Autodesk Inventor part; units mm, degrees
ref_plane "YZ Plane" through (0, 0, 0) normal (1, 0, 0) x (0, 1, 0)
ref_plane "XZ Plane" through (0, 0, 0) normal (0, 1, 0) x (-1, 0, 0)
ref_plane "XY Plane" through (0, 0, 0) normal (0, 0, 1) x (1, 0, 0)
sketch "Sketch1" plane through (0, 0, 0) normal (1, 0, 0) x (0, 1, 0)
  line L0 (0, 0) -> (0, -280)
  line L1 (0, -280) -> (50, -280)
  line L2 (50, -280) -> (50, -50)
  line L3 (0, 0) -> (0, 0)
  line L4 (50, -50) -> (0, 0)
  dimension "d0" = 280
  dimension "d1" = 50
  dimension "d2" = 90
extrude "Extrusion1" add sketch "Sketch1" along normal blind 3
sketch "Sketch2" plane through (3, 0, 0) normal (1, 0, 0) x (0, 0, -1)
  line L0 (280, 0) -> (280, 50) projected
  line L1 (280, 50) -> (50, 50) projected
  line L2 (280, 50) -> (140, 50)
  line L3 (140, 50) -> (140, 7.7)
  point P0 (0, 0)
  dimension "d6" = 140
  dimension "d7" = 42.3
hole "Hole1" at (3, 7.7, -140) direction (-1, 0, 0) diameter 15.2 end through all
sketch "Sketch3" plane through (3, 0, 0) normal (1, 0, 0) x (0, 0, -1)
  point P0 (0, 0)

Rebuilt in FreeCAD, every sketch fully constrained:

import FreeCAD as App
import Part
import Sketcher

V = App.Vector


def add_polygon(sketch, points):
    """Adds a closed chain of lines whose ends are joined by coincident constraints."""
    first, n = sketch.GeometryCount, len(points)
    for a, b in zip(points, points[1:] + points[:1]):
        sketch.addGeometry(Part.LineSegment(App.Vector(*a, 0), App.Vector(*b, 0)), False)
    for i in range(n):
        sketch.addConstraint(Sketcher.Constraint("Coincident", first + i, 2, first + (i + 1) % n, 1))

doc = App.newDocument("Part")
body = doc.addObject("PartDesign::Body", "Body")

sketch1 = doc.addObject("Sketcher::SketchObject", "Sketch")
body.addObject(sketch1)
sketch1.AttachmentSupport = (doc.YZ_Plane, [""])
sketch1.MapMode = "FlatFace"
add_polygon(sketch1, [(50, -50), (0, 0), (0, -280), (50, -280)])
sketch1.addConstraint(Sketcher.Constraint("Vertical", 1))
sketch1.addConstraint(Sketcher.Constraint("Horizontal", 2))
sketch1.addConstraint(Sketcher.Constraint("Vertical", 3))
sketch1.addConstraint(Sketcher.Constraint("Coincident", 0, 2, -1, 1))
sketch1.addConstraint(Sketcher.Constraint("DistanceX", 2, 1, 2, 2, 50.0))
sketch1.addConstraint(Sketcher.Constraint("DistanceY", 1, 2, 1, 1, 280.0))
sketch1.addConstraint(Sketcher.Constraint("DistanceY", 3, 2, -1, 1, 50.0))
pad1 = doc.addObject("PartDesign::Pad", "Pad")
body.addObject(pad1)
pad1.Profile = sketch1
pad1.Length = 3

sketch2 = doc.addObject("Sketcher::SketchObject", "Sketch001")
body.addObject(sketch2)
sketch2.AttachmentSupport = (doc.YZ_Plane, [""])
sketch2.MapMode = "FlatFace"
sketch2.AttachmentOffset = App.Placement(V(0, 0, 3), App.Rotation())
sketch2.addGeometry(Part.Circle(V(8, -140, 0), V(0, 0, 1), 8), False)
sketch2.addConstraint(Sketcher.Constraint("Diameter", 0, 15.2))
sketch2.addConstraint(Sketcher.Constraint("DistanceY", 0, 3, -1, 1, 140.0))
sketch2.addConstraint(Sketcher.Constraint("DistanceX", -1, 1, 0, 3, 7.7))
doc.recompute()
hole = doc.addObject("PartDesign::Hole", "Hole")
body.addObject(hole)
hole.Profile = sketch2
hole.ThreadType = "None"
hole.Diameter = 15.2
hole.DepthType = "ThroughAll"

doc.recompute()
